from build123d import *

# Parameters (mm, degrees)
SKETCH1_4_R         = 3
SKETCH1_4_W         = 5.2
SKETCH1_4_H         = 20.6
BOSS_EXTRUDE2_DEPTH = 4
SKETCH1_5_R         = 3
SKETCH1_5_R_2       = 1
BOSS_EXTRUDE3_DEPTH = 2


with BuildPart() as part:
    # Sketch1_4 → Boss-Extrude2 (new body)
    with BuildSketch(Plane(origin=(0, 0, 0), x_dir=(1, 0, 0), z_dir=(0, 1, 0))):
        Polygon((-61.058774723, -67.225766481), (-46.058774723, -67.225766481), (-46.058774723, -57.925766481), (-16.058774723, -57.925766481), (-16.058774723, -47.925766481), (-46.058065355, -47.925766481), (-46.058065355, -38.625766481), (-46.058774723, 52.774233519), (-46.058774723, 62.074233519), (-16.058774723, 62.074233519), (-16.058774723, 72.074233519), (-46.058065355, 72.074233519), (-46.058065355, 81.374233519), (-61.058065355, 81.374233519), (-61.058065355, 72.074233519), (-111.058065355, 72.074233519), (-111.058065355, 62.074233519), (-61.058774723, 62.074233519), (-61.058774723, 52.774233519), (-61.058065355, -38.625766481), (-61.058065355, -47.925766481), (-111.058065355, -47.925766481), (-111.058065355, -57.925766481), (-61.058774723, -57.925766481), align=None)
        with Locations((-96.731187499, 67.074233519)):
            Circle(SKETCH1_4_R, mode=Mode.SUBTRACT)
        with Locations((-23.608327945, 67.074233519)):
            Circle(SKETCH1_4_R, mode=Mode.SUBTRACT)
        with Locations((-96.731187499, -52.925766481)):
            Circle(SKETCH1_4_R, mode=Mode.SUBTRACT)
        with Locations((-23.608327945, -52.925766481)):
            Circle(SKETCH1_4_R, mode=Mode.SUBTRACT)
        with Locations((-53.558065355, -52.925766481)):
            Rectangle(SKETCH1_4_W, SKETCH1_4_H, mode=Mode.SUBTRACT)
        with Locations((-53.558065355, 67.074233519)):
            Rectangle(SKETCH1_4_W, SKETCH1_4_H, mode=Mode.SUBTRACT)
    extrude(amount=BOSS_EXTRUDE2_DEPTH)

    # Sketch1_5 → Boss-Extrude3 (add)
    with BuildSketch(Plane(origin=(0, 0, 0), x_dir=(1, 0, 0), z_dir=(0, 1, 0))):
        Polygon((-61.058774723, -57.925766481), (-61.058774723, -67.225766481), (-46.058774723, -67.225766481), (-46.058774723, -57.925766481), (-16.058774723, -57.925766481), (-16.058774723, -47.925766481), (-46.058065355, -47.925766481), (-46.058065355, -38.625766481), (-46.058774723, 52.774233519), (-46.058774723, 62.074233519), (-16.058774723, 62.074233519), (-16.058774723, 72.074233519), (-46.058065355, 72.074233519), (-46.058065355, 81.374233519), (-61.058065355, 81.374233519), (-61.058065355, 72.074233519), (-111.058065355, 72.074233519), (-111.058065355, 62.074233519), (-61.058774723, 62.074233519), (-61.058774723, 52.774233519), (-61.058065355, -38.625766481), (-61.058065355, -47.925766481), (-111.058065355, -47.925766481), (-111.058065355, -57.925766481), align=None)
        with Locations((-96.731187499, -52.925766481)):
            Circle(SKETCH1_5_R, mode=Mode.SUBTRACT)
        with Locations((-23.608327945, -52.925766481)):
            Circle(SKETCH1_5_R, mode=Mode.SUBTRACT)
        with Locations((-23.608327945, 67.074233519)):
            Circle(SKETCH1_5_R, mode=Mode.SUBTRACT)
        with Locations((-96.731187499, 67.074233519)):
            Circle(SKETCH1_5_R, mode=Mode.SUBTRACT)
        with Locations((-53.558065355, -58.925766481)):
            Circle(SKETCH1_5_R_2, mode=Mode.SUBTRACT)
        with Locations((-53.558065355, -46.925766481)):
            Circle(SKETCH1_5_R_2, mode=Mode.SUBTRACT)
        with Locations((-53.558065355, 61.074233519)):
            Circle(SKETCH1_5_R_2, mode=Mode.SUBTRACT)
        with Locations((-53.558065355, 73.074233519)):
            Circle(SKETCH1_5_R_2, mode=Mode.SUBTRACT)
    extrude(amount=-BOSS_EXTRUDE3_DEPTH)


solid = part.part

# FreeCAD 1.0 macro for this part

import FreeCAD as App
import Part
import Sketcher
from FreeCAD import Vector
Q = App.Units.Quantity


def add_polygon(sketch, points):
    """Adds a closed chain of lines whose ends are joined by coincident constraints."""
    first, n = sketch.GeometryCount, len(points)
    for a, b in zip(points, points[1:] + points[:1]):
        sketch.addGeometry(Part.LineSegment(App.Vector(*a, 0), App.Vector(*b, 0)), False)
    for i in range(n):
        sketch.addConstraint(Sketcher.Constraint("Coincident", first + i, 2, first + (i + 1) % n, 1))

doc = App.newDocument("Part")
params = doc.addObject("Spreadsheet::Sheet", "Params")
for row, (alias, value) in enumerate([
    ("sketch1_diameter", "6 mm"),
    ("sketch1_width", "15 mm"),
    ("sketch1_width2", "30 mm"),
    ("sketch1_width3", "50 mm"),
    ("sketch1_height", "10 mm"),
    ("pad1_length", "4 mm"),
    ("sketch2_diameter", "6 mm"),
    ("sketch2_diameter2", "2 mm"),
    ("sketch2_width", "15 mm"),
    ("sketch2_width2", "30 mm"),
    ("sketch2_width3", "50 mm"),
    ("pad2_length", "2 mm"),
], start=1):
    params.set(f"A{row}", alias)
    params.set(f"B{row}", "=" + value)
    params.setAlias(f"B{row}", alias)

body = doc.addObject("PartDesign::Body", "Body")

# Sketch on XZ plane
sketch1 = body.newObject("Sketcher::SketchObject", "Sketch")
sketch1.AttachmentSupport = (doc.getObject("XZ_Plane"), [""])
sketch1.MapMode = "FlatFace"
add_polygon(sketch1, [(-61.1, 67.2), (-46.1, 67.2), (-46.1, 57.9), (-16.1, 57.9), (-16.1, 47.9), (-46.1, 47.9), (-46.1, 38.6), (-46.1, -52.8), (-46.1, -62.1), (-16.1, -62.1), (-16.1, -72.1), (-46.1, -72.1), (-46.1, -81.4), (-61.1, -81.4), (-61.1, -72.1), (-111.1, -72.1), (-111.1, -62.1), (-61.1, -62.1), (-61.1, -52.8), (-61.1, 38.6), (-61.1, 47.9), (-111.1, 47.9), (-111.1, 57.9), (-61.1, 57.9)])  # lines 0-23
sketch1.addGeometry(Part.Circle(Vector(-96.7, 52.9, 0), Vector(0, 0, 1), 3), False)  # 24
add_polygon(sketch1, [(-51, 63.2), (-56.2, 63.2), (-56.2, 42.6), (-51, 42.6)])  # lines 25-28
sketch1.addGeometry(Part.Circle(Vector(-23.6, 52.9, 0), Vector(0, 0, 1), 3), False)  # 29
sketch1.addGeometry(Part.Circle(Vector(-96.7, -67.1, 0), Vector(0, 0, 1), 3), False)  # 30
add_polygon(sketch1, [(-51, -56.8), (-56.2, -56.8), (-56.2, -77.4), (-51, -77.4)])  # lines 31-34
sketch1.addGeometry(Part.Circle(Vector(-23.6, -67.1, 0), Vector(0, 0, 1), 3), False)  # 35
sketch1.addConstraint([
    Sketcher.Constraint("Horizontal", 0),
    Sketcher.Constraint("Vertical", 1),
    Sketcher.Constraint("Horizontal", 2),
    Sketcher.Constraint("Vertical", 3),
    Sketcher.Constraint("Horizontal", 4),
    Sketcher.Constraint("Vertical", 5),
    Sketcher.Constraint("Vertical", 7),
    Sketcher.Constraint("Horizontal", 8),
    Sketcher.Constraint("Vertical", 9),
    Sketcher.Constraint("Horizontal", 10),
    Sketcher.Constraint("Vertical", 11),
    Sketcher.Constraint("Horizontal", 12),
    Sketcher.Constraint("Vertical", 13),
    Sketcher.Constraint("Horizontal", 14),
    Sketcher.Constraint("Vertical", 15),
    Sketcher.Constraint("Horizontal", 16),
    Sketcher.Constraint("Vertical", 17),
    Sketcher.Constraint("Vertical", 19),
    Sketcher.Constraint("Horizontal", 20),
    Sketcher.Constraint("Vertical", 21),
    Sketcher.Constraint("Horizontal", 22),
    Sketcher.Constraint("Vertical", 23),
    Sketcher.Constraint("Horizontal", 25),
    Sketcher.Constraint("Vertical", 26),
    Sketcher.Constraint("Horizontal", 27),
    Sketcher.Constraint("Vertical", 28),
    Sketcher.Constraint("Horizontal", 31),
    Sketcher.Constraint("Vertical", 32),
    Sketcher.Constraint("Horizontal", 33),
    Sketcher.Constraint("Vertical", 34),
    Sketcher.Constraint("Equal", 24, 29),
    Sketcher.Constraint("Equal", 29, 30),
    Sketcher.Constraint("Equal", 30, 35),
    Sketcher.Constraint("Parallel", 6, 18),
    Sketcher.Constraint("Horizontal", 24, 3, 29, 3),
    Sketcher.Constraint("Horizontal", 30, 3, 35, 3),
    Sketcher.Constraint("Horizontal", 10, 2, 13, 2),
    Sketcher.Constraint("Horizontal", 8, 2, 15, 2),
    Sketcher.Constraint("Horizontal", 6, 2, 17, 2),
    Sketcher.Constraint("Horizontal", 5, 2, 18, 2),
    Sketcher.Constraint("Horizontal", 4, 2, 19, 2),
    Sketcher.Constraint("Horizontal", 2, 2, 21, 2),
    Sketcher.Constraint("Vertical", 24, 3, 30, 3),
    Sketcher.Constraint("Vertical", 29, 3, 35, 3),
    Sketcher.Constraint("Vertical", 1, 2, 6, 2),
    Sketcher.Constraint("Vertical", 3, 2, 8, 2),
    Sketcher.Constraint("Vertical", 5, 2, 10, 2),
    Sketcher.Constraint("Vertical", 13, 2, 18, 2),
    Sketcher.Constraint("Vertical", 15, 2, 20, 2),
    Sketcher.Constraint("Vertical", 17, 2, 22, 2),
    Sketcher.Constraint("Vertical", 26, 2, 31, 2),
    Sketcher.Constraint("Vertical", 28, 2, 33, 2),
    Sketcher.Constraint("Equal", 1, 5),
    Sketcher.Constraint("Equal", 5, 7),
    Sketcher.Constraint("Equal", 3, 9),
    Sketcher.Constraint("Equal", 7, 11),
    Sketcher.Constraint("Equal", 28, 32),
    Sketcher.Constraint("Diameter", 24, Q("6 mm")),
    Sketcher.Constraint("DistanceX", 0, 1, 0, 2, Q("15 mm")),
    Sketcher.Constraint("DistanceX", 2, 1, 2, 2, Q("30 mm")),
    Sketcher.Constraint("DistanceX", 14, 2, 14, 1, Q("50 mm")),
    Sketcher.Constraint("DistanceY", 3, 2, 3, 1, Q("10 mm")),
    Sketcher.Constraint("DistanceX", 25, 2, 25, 1, Q("5.2 mm")),
    Sketcher.Constraint("DistanceY", 1, 2, 1, 1, Q("9.3 mm")),
    Sketcher.Constraint("DistanceY", 26, 2, 26, 1, Q("20.6 mm")),
    Sketcher.Constraint("DistanceY", 30, 3, 24, 3, Q("120 mm")),
    Sketcher.Constraint("DistanceY", 29, 3, 1, 2, Q("5 mm")),
    Sketcher.Constraint("DistanceY", 35, 3, 7, 2, Q("5 mm")),
    Sketcher.Constraint("DistanceY", 25, 2, 23, 2, Q("4 mm")),
    Sketcher.Constraint("DistanceY", 31, 2, 17, 2, Q("4 mm")),
    Sketcher.Constraint("DistanceX", 19, 2, 25, 2, Q("4.9 mm")),
    Sketcher.Constraint("DistanceX", 4, 2, 4, 1, Q("29.999291 mm")),
    Sketcher.Constraint("DistanceX", 24, 3, 29, 3, Q("73.12286 mm")),
    Sketcher.Constraint("DistanceX", 24, 3, -1, 1, Q("96.731187 mm")),
    Sketcher.Constraint("DistanceY", -1, 1, 24, 3, Q("52.925766 mm")),
    Sketcher.Constraint("DistanceX", 0, 2, -1, 1, Q("46.058775 mm")),
])
sketch1.setExpression("Constraints[89]", "Params.sketch1_diameter")
sketch1.setExpression("Constraints[90]", "Params.sketch1_width")
sketch1.setExpression("Constraints[91]", "Params.sketch1_width2")
sketch1.setExpression("Constraints[92]", "Params.sketch1_width3")
sketch1.setExpression("Constraints[93]", "Params.sketch1_height")
pad1 = body.newObject("PartDesign::Pad", "Pad")
pad1.Profile = sketch1
pad1.setExpression("Length", "Params.pad1_length")
pad1.Reversed = True

# Sketch on XZ plane
sketch2 = body.newObject("Sketcher::SketchObject", "Sketch001")
sketch2.AttachmentSupport = (doc.getObject("XZ_Plane"), [""])
sketch2.MapMode = "FlatFace"
add_polygon(sketch2, [(-61.1, 57.9), (-61.1, 67.2), (-46.1, 67.2), (-46.1, 57.9), (-16.1, 57.9), (-16.1, 47.9), (-46.1, 47.9), (-46.1, 38.6), (-46.1, -52.8), (-46.1, -62.1), (-16.1, -62.1), (-16.1, -72.1), (-46.1, -72.1), (-46.1, -81.4), (-61.1, -81.4), (-61.1, -72.1), (-111.1, -72.1), (-111.1, -62.1), (-61.1, -62.1), (-61.1, -52.8), (-61.1, 38.6), (-61.1, 47.9), (-111.1, 47.9), (-111.1, 57.9)])  # lines 0-23
sketch2.addGeometry(Part.Circle(Vector(-96.7, 52.9, 0), Vector(0, 0, 1), 3), False)  # 24
sketch2.addGeometry(Part.Circle(Vector(-53.6, 58.9, 0), Vector(0, 0, 1), 1), False)  # 25
sketch2.addGeometry(Part.Circle(Vector(-53.6, 46.9, 0), Vector(0, 0, 1), 1), False)  # 26
sketch2.addGeometry(Part.Circle(Vector(-23.6, 52.9, 0), Vector(0, 0, 1), 3), False)  # 27
sketch2.addGeometry(Part.Circle(Vector(-96.7, -67.1, 0), Vector(0, 0, 1), 3), False)  # 28
sketch2.addGeometry(Part.Circle(Vector(-53.6, -61.1, 0), Vector(0, 0, 1), 1), False)  # 29
sketch2.addGeometry(Part.Circle(Vector(-53.6, -73.1, 0), Vector(0, 0, 1), 1), False)  # 30
sketch2.addGeometry(Part.Circle(Vector(-23.6, -67.1, 0), Vector(0, 0, 1), 3), False)  # 31
sketch2.addConstraint([
    Sketcher.Constraint("Vertical", 0),
    Sketcher.Constraint("Horizontal", 1),
    Sketcher.Constraint("Vertical", 2),
    Sketcher.Constraint("Horizontal", 3),
    Sketcher.Constraint("Vertical", 4),
    Sketcher.Constraint("Horizontal", 5),
    Sketcher.Constraint("Vertical", 6),
    Sketcher.Constraint("Vertical", 8),
    Sketcher.Constraint("Horizontal", 9),
    Sketcher.Constraint("Vertical", 10),
    Sketcher.Constraint("Horizontal", 11),
    Sketcher.Constraint("Vertical", 12),
    Sketcher.Constraint("Horizontal", 13),
    Sketcher.Constraint("Vertical", 14),
    Sketcher.Constraint("Horizontal", 15),
    Sketcher.Constraint("Vertical", 16),
    Sketcher.Constraint("Horizontal", 17),
    Sketcher.Constraint("Vertical", 18),
    Sketcher.Constraint("Vertical", 20),
    Sketcher.Constraint("Horizontal", 21),
    Sketcher.Constraint("Vertical", 22),
    Sketcher.Constraint("Horizontal", 23),
    Sketcher.Constraint("Equal", 25, 26),
    Sketcher.Constraint("Equal", 24, 27),
    Sketcher.Constraint("Equal", 27, 28),
    Sketcher.Constraint("Equal", 26, 29),
    Sketcher.Constraint("Equal", 29, 30),
    Sketcher.Constraint("Equal", 28, 31),
    Sketcher.Constraint("Parallel", 7, 19),
    Sketcher.Constraint("Horizontal", 24, 3, 27, 3),
    Sketcher.Constraint("Horizontal", 28, 3, 31, 3),
    Sketcher.Constraint("Horizontal", 11, 2, 14, 2),
    Sketcher.Constraint("Horizontal", 9, 2, 16, 2),
    Sketcher.Constraint("Horizontal", 7, 2, 18, 2),
    Sketcher.Constraint("Horizontal", 6, 2, 19, 2),
    Sketcher.Constraint("Horizontal", 5, 2, 20, 2),
    Sketcher.Constraint("Horizontal", 3, 2, 22, 2),
    Sketcher.Constraint("Vertical", 25, 3, 26, 3),
    Sketcher.Constraint("Vertical", 24, 3, 28, 3),
    Sketcher.Constraint("Vertical", 26, 3, 29, 3),
    Sketcher.Constraint("Vertical", 29, 3, 30, 3),
    Sketcher.Constraint("Vertical", 27, 3, 31, 3),
    Sketcher.Constraint("Vertical", 2, 2, 7, 2),
    Sketcher.Constraint("Vertical", 4, 2, 9, 2),
    Sketcher.Constraint("Vertical", 6, 2, 11, 2),
    Sketcher.Constraint("Vertical", 0, 2, 17, 2),
    Sketcher.Constraint("Vertical", 14, 2, 19, 2),
    Sketcher.Constraint("Vertical", 16, 2, 21, 2),
    Sketcher.Constraint("Equal", 2, 6),
    Sketcher.Constraint("Equal", 6, 8),
    Sketcher.Constraint("Equal", 4, 10),
    Sketcher.Constraint("Equal", 8, 12),
    Sketcher.Constraint("Diameter", 24, Q("6 mm")),
    Sketcher.Constraint("Diameter", 25, Q("2 mm")),
    Sketcher.Constraint("DistanceX", 1, 1, 1, 2, Q("15 mm")),
    Sketcher.Constraint("DistanceX", 3, 1, 3, 2, Q("30 mm")),
    Sketcher.Constraint("DistanceX", 15, 2, 15, 1, Q("50 mm")),
    Sketcher.Constraint("DistanceY", 4, 2, 4, 1, Q("10 mm")),
    Sketcher.Constraint("DistanceY", 0, 1, 0, 2, Q("9.3 mm")),
    Sketcher.Constraint("DistanceY", 24, 3, 25, 3, Q("6 mm")),
    Sketcher.Constraint("DistanceY", 26, 3, 25, 3, Q("12 mm")),
    Sketcher.Constraint("DistanceY", 28, 3, 24, 3, Q("120 mm")),
    Sketcher.Constraint("DistanceY", 28, 3, 29, 3, Q("6 mm")),
    Sketcher.Constraint("DistanceY", 30, 3, 29, 3, Q("12 mm")),
    Sketcher.Constraint("DistanceY", 2, 2, 25, 3, Q("1 mm")),
    Sketcher.Constraint("DistanceY", 8, 2, 29, 3, Q("1 mm")),
    Sketcher.Constraint("DistanceX", 26, 3, 5, 2, Q("7.5 mm")),
    Sketcher.Constraint("DistanceX", 5, 2, 5, 1, Q("29.999291 mm")),
    Sketcher.Constraint("DistanceX", 24, 3, 27, 3, Q("73.12286 mm")),
    Sketcher.Constraint("DistanceX", 24, 3, -1, 1, Q("96.731187 mm")),
    Sketcher.Constraint("DistanceY", -1, 1, 24, 3, Q("52.925766 mm")),
    Sketcher.Constraint("DistanceX", 25, 3, -1, 1, Q("53.558065 mm")),
])
sketch2.setExpression("Constraints[76]", "Params.sketch2_diameter")
sketch2.setExpression("Constraints[77]", "Params.sketch2_diameter2")
sketch2.setExpression("Constraints[78]", "Params.sketch2_width")
sketch2.setExpression("Constraints[79]", "Params.sketch2_width2")
sketch2.setExpression("Constraints[80]", "Params.sketch2_width3")
pad2 = body.newObject("PartDesign::Pad", "Pad001")
pad2.Profile = sketch2
pad2.setExpression("Length", "Params.pad2_length")

doc.recompute()
